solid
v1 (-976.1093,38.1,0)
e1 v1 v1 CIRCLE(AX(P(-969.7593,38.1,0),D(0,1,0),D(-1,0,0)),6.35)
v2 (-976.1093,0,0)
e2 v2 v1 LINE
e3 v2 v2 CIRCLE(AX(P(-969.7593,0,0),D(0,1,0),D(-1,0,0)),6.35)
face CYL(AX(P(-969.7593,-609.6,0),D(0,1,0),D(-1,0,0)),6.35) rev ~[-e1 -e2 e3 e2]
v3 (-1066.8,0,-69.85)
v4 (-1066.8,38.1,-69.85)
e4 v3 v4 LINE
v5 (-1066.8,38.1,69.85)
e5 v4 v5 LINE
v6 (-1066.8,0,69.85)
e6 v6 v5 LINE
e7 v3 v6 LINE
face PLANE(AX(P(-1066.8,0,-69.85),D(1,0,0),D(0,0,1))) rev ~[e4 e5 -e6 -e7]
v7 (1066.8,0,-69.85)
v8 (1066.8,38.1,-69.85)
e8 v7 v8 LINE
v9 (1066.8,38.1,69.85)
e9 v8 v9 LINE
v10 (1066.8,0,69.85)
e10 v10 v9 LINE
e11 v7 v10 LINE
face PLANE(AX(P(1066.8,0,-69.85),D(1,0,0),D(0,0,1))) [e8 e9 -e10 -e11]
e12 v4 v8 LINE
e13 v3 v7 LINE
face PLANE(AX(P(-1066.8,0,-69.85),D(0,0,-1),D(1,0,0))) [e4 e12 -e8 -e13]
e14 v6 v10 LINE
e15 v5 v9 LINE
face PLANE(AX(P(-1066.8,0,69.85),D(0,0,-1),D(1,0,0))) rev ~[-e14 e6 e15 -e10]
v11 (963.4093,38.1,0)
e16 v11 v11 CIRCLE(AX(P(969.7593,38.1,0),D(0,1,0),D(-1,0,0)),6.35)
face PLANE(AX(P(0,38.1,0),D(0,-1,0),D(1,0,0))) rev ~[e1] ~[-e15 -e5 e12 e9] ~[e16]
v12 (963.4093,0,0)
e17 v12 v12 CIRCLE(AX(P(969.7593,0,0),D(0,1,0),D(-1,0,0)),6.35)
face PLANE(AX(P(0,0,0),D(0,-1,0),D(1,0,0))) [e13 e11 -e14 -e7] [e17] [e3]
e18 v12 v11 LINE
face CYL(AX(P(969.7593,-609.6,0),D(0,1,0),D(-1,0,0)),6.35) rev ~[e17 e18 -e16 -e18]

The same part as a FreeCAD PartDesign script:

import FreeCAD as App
import Part
import Sketcher
Q = App.Units.Quantity


def add_polygon(sketch, points):
    """Adds a closed chain of lines whose ends are joined by coincident constraints."""
    first, n = sketch.GeometryCount, len(points)
    for a, b in zip(points, points[1:] + points[:1]):
        sketch.addGeometry(Part.LineSegment(App.Vector(*a, 0), App.Vector(*b, 0)), False)
    for i in range(n):
        sketch.addConstraint(Sketcher.Constraint("Coincident", first + i, 2, first + (i + 1) % n, 1))

doc = App.newDocument("Part")
body = doc.addObject("PartDesign::Body", "Body")

# Sketch on XZ plane
sketch1 = doc.addObject("Sketcher::SketchObject", "Sketch")
body.addObject(sketch1)
sketch1.AttachmentSupport = (doc.XZ_Plane, [""])
sketch1.MapMode = "FlatFace"
add_polygon(sketch1, [(-1067, 70), (-1067, -70), (1067, -70), (1067, 70)])  # lines 0-3
sketch1.addConstraint([
    Sketcher.Constraint("Vertical", 0),
    Sketcher.Constraint("Horizontal", 1),
    Sketcher.Constraint("Vertical", 2),
    Sketcher.Constraint("Horizontal", 3),
    Sketcher.Constraint("Symmetric", 0, 2, 2, 2, -1, 1),
    Sketcher.Constraint("DistanceX", 1, 1, 1, 2, Q("84 in")),
    Sketcher.Constraint("DistanceY", 0, 2, 0, 1, Q("5.5 in")),
])
pad1 = doc.addObject("PartDesign::Pad", "Pad")
body.addObject(pad1)
pad1.Profile = sketch1
pad1.Length = Q("1.5 in")
pad1.Reversed = True

# Sketch on XZ plane
sketch2 = doc.addObject("Sketcher::SketchObject", "Sketch001")
body.addObject(sketch2)
sketch2.AttachmentSupport = (doc.XZ_Plane, [""])
sketch2.MapMode = "FlatFace"
sketch2.addGeometry(Part.Circle(App.Vector(-970, 0, 0), App.Vector(0, 0, 1), 6), False)
sketch2.addConstraint([
    Sketcher.Constraint("PointOnObject", 0, 3, -1),
    Sketcher.Constraint("Diameter", 0, Q("0.5 in")),
    Sketcher.Constraint("DistanceX", 0, 3, -1, 1, Q("38.1795 in")),
])
doc.recompute()
hole = doc.addObject("PartDesign::Hole", "Hole")
body.addObject(hole)
hole.Profile = sketch2
hole.ThreadType = "None"
hole.Diameter = Q("0.5 in")
hole.DepthType = "Dimension"
hole.Depth = Q("24 in")
hole.DrillPoint = "Flat"

# Sketch on XZ plane
sketch3 = doc.addObject("Sketcher::SketchObject", "Sketch002")
body.addObject(sketch3)
sketch3.AttachmentSupport = (doc.XZ_Plane, [""])
sketch3.MapMode = "FlatFace"
sketch3.addGeometry(Part.Circle(App.Vector(970, 0, 0), App.Vector(0, 0, 1), 6), False)
sketch3.addConstraint([
    Sketcher.Constraint("PointOnObject", 0, 3, -1),
    Sketcher.Constraint("Diameter", 0, Q("0.5 in")),
    Sketcher.Constraint("DistanceX", -1, 1, 0, 3, Q("38.1795 in")),
])
doc.recompute()
hole2 = doc.addObject("PartDesign::Hole", "Hole001")
body.addObject(hole2)
hole2.Profile = sketch3
hole2.ThreadType = "None"
hole2.Diameter = Q("0.5 in")
hole2.DepthType = "Dimension"
hole2.Depth = Q("24 in")
hole2.DrillPoint = "Flat"

doc.recompute()
